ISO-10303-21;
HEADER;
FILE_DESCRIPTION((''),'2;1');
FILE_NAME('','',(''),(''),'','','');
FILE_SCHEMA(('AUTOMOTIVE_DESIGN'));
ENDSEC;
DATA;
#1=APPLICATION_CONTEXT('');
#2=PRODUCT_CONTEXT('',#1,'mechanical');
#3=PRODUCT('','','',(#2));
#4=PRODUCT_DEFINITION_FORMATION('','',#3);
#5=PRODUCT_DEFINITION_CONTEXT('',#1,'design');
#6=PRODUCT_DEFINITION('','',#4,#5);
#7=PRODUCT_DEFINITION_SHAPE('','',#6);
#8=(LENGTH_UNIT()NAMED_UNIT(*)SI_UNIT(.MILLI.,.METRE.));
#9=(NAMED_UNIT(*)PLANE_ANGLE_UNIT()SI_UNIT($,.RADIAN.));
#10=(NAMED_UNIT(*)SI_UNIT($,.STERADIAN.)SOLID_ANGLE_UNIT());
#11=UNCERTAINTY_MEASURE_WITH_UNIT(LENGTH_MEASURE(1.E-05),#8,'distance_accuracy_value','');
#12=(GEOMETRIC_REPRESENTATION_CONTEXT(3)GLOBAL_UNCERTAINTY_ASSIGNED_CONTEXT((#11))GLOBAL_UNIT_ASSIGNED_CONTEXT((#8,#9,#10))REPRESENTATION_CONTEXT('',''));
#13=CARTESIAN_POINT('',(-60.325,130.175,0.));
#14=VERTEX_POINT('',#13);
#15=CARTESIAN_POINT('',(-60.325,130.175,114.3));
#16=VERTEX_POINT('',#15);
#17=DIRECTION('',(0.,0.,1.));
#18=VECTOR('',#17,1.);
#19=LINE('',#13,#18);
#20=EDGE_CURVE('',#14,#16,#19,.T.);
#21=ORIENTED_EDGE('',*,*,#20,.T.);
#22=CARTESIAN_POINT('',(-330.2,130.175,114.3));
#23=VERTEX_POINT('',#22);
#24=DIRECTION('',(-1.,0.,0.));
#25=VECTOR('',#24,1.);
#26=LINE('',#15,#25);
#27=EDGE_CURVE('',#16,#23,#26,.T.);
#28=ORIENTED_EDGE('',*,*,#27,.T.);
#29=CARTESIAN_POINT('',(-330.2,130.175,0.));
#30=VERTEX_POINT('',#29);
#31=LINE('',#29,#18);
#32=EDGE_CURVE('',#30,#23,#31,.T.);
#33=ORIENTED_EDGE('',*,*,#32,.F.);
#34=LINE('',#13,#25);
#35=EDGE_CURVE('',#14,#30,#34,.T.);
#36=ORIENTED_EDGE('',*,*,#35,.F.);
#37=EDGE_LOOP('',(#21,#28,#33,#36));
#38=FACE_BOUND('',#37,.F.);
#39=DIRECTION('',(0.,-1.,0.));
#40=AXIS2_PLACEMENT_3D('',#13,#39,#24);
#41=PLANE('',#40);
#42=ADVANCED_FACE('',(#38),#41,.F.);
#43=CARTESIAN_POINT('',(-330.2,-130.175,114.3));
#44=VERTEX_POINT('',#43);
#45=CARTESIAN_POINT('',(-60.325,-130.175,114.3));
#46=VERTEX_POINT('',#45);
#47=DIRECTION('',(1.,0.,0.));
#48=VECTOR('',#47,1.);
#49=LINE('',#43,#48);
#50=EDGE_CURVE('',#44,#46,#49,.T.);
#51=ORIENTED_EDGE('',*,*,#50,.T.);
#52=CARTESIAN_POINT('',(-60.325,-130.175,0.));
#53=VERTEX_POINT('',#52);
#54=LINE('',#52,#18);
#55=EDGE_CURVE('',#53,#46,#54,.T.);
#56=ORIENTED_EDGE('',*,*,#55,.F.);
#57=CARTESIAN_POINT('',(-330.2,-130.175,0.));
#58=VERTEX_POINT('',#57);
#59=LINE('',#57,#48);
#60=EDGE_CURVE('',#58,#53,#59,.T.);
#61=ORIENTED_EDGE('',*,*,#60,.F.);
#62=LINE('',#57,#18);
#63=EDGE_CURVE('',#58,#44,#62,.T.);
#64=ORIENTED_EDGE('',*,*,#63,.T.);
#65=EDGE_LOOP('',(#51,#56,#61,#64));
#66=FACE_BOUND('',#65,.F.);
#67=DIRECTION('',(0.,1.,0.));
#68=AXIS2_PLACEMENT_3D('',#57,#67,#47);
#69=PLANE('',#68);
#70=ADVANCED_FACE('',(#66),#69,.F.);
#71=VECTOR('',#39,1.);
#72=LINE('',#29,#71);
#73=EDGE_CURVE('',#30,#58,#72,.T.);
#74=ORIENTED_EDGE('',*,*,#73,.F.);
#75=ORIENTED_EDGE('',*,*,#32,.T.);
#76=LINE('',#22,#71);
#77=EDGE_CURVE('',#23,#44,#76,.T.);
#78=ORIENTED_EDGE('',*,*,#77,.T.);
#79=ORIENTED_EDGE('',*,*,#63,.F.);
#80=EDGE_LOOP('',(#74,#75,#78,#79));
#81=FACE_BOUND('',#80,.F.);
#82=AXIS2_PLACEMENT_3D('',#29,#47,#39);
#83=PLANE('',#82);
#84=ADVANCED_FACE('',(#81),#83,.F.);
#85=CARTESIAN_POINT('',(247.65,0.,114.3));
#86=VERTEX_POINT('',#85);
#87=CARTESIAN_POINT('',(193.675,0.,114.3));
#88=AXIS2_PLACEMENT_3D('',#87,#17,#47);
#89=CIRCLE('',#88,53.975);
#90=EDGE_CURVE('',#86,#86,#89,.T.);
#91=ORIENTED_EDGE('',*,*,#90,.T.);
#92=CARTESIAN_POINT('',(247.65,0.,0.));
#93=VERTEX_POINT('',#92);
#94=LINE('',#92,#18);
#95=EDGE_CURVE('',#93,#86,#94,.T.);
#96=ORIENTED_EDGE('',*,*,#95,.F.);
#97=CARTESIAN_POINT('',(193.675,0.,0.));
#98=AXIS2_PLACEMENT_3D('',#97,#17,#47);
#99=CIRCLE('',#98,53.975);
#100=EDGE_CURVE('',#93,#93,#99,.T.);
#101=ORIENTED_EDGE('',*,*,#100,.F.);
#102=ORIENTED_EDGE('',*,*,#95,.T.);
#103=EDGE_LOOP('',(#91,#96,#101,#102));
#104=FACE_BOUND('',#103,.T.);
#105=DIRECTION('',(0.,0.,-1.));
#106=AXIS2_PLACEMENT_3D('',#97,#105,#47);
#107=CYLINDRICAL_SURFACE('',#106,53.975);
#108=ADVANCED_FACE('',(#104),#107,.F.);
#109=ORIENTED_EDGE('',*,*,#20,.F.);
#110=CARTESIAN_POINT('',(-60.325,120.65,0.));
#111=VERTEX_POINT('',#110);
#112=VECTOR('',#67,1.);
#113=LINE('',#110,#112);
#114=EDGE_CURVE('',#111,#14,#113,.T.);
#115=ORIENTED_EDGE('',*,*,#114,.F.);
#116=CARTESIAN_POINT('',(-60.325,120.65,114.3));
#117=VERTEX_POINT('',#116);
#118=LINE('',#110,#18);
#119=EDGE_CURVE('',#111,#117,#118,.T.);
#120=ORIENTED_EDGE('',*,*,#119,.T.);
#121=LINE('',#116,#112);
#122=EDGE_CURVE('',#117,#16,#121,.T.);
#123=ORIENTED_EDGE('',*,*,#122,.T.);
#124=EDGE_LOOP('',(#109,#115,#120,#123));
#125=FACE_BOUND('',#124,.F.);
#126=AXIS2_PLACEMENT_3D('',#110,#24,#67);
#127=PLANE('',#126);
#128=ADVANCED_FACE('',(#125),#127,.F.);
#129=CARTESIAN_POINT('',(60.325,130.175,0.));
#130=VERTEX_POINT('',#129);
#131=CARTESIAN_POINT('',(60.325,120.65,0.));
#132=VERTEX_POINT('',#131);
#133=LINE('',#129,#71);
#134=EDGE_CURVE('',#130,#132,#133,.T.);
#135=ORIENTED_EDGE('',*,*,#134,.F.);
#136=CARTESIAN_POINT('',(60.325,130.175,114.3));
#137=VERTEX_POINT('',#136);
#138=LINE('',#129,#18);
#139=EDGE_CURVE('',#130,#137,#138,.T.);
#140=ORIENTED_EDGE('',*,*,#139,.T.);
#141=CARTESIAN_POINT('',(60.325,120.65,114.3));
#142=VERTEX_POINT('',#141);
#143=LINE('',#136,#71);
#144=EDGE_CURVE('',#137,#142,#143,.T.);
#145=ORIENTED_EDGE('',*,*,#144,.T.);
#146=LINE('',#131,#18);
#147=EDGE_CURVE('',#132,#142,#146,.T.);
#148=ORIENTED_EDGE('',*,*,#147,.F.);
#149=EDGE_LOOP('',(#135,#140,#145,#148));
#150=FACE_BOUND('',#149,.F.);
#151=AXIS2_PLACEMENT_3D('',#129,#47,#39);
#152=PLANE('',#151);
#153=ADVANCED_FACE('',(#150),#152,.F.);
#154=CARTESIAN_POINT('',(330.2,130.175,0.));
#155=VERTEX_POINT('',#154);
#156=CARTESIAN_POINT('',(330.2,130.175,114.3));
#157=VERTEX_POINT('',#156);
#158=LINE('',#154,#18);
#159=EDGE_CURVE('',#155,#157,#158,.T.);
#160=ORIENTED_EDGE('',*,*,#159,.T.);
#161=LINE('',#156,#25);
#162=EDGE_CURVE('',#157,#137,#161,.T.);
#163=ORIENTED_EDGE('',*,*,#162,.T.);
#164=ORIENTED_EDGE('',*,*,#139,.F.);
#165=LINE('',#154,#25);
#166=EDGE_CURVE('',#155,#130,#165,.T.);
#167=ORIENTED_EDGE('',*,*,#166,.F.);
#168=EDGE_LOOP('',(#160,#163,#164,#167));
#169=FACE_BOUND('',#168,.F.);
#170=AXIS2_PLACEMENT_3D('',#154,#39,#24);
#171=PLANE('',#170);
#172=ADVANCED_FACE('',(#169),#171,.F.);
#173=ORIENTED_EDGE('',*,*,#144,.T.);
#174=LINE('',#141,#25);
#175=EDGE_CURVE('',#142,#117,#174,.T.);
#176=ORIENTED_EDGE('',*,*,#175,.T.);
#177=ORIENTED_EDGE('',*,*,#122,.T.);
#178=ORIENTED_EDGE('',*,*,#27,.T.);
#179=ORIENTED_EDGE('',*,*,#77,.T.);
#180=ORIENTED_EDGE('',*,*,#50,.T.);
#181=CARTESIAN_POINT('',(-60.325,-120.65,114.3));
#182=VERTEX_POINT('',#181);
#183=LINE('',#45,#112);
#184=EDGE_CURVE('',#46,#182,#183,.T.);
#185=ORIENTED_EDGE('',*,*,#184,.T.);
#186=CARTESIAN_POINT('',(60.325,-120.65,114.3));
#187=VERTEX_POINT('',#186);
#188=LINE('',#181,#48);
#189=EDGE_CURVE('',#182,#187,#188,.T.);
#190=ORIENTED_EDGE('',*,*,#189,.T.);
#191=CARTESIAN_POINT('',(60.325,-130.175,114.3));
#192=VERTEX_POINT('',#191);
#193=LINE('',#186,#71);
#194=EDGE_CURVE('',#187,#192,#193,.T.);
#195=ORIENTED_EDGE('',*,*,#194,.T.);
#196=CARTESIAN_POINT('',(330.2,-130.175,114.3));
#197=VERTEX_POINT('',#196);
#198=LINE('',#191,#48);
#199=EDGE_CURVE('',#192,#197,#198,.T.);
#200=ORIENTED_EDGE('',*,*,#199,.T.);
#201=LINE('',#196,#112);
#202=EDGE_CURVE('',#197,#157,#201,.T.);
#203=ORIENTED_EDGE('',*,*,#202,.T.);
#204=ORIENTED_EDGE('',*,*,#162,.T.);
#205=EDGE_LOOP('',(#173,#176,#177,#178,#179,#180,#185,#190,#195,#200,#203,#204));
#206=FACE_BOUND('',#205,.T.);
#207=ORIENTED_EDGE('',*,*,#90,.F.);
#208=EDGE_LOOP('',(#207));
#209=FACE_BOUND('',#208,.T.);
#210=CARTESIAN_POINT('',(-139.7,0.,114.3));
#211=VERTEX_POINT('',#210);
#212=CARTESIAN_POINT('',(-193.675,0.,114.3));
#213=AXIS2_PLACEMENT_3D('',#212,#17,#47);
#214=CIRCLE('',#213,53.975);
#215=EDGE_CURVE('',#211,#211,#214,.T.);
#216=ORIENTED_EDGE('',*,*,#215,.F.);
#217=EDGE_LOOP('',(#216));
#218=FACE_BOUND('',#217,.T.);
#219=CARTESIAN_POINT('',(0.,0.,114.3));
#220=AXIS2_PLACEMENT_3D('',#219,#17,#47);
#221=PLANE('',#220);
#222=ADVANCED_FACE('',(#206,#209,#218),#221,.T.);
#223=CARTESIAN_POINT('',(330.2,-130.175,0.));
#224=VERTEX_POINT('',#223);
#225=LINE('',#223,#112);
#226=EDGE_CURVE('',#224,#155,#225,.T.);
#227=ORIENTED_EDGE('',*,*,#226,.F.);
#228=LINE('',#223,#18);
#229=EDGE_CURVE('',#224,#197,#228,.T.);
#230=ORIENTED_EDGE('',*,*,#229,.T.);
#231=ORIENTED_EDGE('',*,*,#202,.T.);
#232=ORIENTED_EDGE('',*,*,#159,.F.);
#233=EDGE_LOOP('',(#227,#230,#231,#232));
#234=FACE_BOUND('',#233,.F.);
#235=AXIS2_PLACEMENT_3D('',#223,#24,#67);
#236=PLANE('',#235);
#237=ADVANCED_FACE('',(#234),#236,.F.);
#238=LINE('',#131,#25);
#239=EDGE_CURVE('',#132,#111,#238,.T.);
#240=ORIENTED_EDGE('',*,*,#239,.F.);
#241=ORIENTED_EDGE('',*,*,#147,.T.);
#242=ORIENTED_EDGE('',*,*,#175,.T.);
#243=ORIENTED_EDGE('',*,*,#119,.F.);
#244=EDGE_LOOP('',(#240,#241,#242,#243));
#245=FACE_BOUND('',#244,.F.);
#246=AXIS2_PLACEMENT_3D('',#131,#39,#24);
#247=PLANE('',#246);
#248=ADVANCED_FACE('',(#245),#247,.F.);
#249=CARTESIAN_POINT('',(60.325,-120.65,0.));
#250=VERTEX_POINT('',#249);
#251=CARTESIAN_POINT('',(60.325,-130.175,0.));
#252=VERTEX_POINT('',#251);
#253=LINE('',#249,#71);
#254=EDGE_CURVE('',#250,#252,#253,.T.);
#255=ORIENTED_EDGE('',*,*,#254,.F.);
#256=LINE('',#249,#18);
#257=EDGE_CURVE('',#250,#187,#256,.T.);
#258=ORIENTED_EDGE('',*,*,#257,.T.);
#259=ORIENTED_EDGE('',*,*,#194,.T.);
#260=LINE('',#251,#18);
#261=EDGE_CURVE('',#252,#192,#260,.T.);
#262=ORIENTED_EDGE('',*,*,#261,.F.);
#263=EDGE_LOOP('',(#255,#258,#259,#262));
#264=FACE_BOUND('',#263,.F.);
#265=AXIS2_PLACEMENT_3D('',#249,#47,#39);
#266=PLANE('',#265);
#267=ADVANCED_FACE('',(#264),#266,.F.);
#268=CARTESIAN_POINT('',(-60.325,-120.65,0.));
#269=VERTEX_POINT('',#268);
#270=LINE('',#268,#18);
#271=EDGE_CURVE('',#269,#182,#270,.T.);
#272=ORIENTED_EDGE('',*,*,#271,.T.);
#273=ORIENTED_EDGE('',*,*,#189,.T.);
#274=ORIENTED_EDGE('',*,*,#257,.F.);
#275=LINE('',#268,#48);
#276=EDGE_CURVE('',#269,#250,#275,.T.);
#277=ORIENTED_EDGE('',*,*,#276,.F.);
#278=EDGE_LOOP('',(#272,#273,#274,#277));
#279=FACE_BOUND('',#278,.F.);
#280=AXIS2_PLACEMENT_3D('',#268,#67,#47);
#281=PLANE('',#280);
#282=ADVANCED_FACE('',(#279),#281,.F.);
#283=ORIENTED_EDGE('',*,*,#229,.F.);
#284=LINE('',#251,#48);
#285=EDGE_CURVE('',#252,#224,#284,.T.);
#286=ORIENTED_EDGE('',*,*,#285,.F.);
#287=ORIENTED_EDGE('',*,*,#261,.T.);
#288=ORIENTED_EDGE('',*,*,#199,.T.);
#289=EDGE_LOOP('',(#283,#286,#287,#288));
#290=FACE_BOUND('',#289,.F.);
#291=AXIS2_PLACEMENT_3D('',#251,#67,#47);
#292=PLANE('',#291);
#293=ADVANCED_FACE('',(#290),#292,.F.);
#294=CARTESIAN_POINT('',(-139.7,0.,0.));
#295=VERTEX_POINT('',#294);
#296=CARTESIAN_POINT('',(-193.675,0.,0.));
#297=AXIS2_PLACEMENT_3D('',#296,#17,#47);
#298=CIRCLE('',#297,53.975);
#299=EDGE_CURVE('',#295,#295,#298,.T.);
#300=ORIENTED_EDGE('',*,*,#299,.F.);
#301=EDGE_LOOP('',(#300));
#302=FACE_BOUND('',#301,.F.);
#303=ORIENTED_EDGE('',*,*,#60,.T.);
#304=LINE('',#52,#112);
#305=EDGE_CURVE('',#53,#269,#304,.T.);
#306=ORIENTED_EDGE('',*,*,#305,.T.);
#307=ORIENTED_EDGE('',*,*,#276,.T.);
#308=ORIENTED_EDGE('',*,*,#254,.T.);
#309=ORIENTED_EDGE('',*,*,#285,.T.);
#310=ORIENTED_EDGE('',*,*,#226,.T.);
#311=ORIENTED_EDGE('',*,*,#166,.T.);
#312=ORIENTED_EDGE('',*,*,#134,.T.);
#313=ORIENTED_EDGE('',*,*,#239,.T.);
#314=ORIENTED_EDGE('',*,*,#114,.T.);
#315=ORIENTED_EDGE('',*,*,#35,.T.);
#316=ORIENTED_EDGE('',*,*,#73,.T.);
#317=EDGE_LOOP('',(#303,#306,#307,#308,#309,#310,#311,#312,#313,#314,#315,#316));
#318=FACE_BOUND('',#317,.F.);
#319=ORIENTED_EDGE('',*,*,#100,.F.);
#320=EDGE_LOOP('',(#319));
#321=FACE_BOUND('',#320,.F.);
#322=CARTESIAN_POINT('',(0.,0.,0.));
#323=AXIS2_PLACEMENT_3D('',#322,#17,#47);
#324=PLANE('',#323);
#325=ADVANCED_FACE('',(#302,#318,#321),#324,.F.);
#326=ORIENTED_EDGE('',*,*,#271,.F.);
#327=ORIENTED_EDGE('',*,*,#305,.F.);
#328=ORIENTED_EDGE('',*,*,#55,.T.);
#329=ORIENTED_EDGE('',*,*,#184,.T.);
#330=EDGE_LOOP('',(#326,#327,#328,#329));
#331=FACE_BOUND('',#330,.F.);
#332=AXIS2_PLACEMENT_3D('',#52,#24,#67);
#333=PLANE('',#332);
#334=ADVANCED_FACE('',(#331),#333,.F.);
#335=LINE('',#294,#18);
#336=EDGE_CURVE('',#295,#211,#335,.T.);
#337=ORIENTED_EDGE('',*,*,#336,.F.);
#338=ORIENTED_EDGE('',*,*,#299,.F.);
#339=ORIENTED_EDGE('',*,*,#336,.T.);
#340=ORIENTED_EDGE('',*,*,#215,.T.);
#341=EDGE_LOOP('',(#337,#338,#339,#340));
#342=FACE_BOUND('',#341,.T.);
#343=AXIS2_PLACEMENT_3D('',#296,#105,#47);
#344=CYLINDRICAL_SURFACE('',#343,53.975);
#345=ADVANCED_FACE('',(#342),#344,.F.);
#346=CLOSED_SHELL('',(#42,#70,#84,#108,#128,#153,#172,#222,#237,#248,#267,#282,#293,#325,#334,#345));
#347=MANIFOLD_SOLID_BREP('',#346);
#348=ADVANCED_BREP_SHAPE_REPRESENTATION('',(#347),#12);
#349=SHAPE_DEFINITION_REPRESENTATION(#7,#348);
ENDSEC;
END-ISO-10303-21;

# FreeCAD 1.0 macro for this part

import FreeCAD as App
import Part
import Sketcher

V = App.Vector
Q = App.Units.Quantity


def add_polygon(sketch, points):
    """Adds a closed chain of lines whose ends are joined by coincident constraints."""
    first, n = sketch.GeometryCount, len(points)
    for a, b in zip(points, points[1:] + points[:1]):
        sketch.addGeometry(Part.LineSegment(App.Vector(*a, 0), App.Vector(*b, 0)), False)
    for i in range(n):
        sketch.addConstraint(Sketcher.Constraint("Coincident", first + i, 2, first + (i + 1) % n, 1))

doc = App.newDocument("Part")
params = doc.addObject("Spreadsheet::Sheet", "Params")
for row, (alias, value) in enumerate([
    ("sketch1_diameter", "4.25 in"),
    ("sketch1_width", "4.75 in"),
    ("sketch1_height", "10.25 in"),
    ("pad1_length", "4.5 in"),
], start=1):
    params.set(f"A{row}", alias)
    params.set(f"B{row}", "=" + value)
    params.setAlias(f"B{row}", alias)

body = doc.addObject("PartDesign::Body", "Body")

# Sketch on XY plane
sketch1 = doc.addObject("Sketcher::SketchObject", "Sketch")
body.addObject(sketch1)
sketch1.AttachmentSupport = (doc.XY_Plane, [""])
sketch1.MapMode = "FlatFace"
add_polygon(sketch1, [(330.2, -130.175), (330.2, 130.175), (60.325, 130.175), (60.325, 120.65), (-60.325, 120.65), (-60.325, 130.175), (-330.2, 130.175), (-330.2, -130.175), (-60.325, -130.175), (-60.325, -120.65), (60.325, -120.65), (60.325, -130.175)])  # lines 0-11
sketch1.addGeometry(Part.Circle(V(-193.675, 0, 0), V(0, 0, 1), 53.975), False)  # 12
sketch1.addGeometry(Part.Circle(V(193.675, 0, 0), V(0, 0, 1), 53.975), False)  # 13
sketch1.addConstraint(Sketcher.Constraint("Vertical", 0))
sketch1.addConstraint(Sketcher.Constraint("Horizontal", 1))
sketch1.addConstraint(Sketcher.Constraint("Vertical", 2))
sketch1.addConstraint(Sketcher.Constraint("Horizontal", 3))
sketch1.addConstraint(Sketcher.Constraint("Vertical", 4))
sketch1.addConstraint(Sketcher.Constraint("Horizontal", 5))
sketch1.addConstraint(Sketcher.Constraint("Vertical", 6))
sketch1.addConstraint(Sketcher.Constraint("Horizontal", 7))
sketch1.addConstraint(Sketcher.Constraint("Vertical", 8))
sketch1.addConstraint(Sketcher.Constraint("Horizontal", 9))
sketch1.addConstraint(Sketcher.Constraint("Vertical", 10))
sketch1.addConstraint(Sketcher.Constraint("Horizontal", 11))
sketch1.addConstraint(Sketcher.Constraint("Equal", 12, 13))
sketch1.addConstraint(Sketcher.Constraint("Symmetric", 12, 3, 13, 3, -1, 1))
sketch1.addConstraint(Sketcher.Constraint("Symmetric", 0, 2, 6, 2, -1, 1))
sketch1.addConstraint(Sketcher.Constraint("Symmetric", 2, 2, 8, 2, -1, 1))
sketch1.addConstraint(Sketcher.Constraint("Symmetric", 4, 2, 10, 2, -1, 1))
sketch1.addConstraint(Sketcher.Constraint("Symmetric", 1, 2, 4, 2, -2))
sketch1.addConstraint(Sketcher.Constraint("PointOnObject", 12, 3, -1))
sketch1.addConstraint(Sketcher.Constraint("Diameter", 12, Q("4.25 in")))
sketch1.addConstraint(Sketcher.Constraint("DistanceX", -1, 1, 0, 2, Q("13 in")))
sketch1.addConstraint(Sketcher.Constraint("DistanceX", 12, 3, 1, 2, Q("10 in")))
sketch1.addConstraint(Sketcher.Constraint("DistanceX", 3, 2, 3, 1, Q("4.75 in")))
sketch1.addConstraint(Sketcher.Constraint("DistanceY", 0, 1, 0, 2, Q("10.25 in")))
sketch1.addConstraint(Sketcher.Constraint("DistanceY", 8, 2, 3, 2, Q("9.5 in")))
sketch1.setExpression("Constraints[31]", "Params.sketch1_diameter")
sketch1.setExpression("Constraints[34]", "Params.sketch1_width")
sketch1.setExpression("Constraints[35]", "Params.sketch1_height")
pad1 = doc.addObject("PartDesign::Pad", "Pad")
body.addObject(pad1)
pad1.Profile = sketch1
pad1.setExpression("Length", "Params.pad1_length")

doc.recompute()
